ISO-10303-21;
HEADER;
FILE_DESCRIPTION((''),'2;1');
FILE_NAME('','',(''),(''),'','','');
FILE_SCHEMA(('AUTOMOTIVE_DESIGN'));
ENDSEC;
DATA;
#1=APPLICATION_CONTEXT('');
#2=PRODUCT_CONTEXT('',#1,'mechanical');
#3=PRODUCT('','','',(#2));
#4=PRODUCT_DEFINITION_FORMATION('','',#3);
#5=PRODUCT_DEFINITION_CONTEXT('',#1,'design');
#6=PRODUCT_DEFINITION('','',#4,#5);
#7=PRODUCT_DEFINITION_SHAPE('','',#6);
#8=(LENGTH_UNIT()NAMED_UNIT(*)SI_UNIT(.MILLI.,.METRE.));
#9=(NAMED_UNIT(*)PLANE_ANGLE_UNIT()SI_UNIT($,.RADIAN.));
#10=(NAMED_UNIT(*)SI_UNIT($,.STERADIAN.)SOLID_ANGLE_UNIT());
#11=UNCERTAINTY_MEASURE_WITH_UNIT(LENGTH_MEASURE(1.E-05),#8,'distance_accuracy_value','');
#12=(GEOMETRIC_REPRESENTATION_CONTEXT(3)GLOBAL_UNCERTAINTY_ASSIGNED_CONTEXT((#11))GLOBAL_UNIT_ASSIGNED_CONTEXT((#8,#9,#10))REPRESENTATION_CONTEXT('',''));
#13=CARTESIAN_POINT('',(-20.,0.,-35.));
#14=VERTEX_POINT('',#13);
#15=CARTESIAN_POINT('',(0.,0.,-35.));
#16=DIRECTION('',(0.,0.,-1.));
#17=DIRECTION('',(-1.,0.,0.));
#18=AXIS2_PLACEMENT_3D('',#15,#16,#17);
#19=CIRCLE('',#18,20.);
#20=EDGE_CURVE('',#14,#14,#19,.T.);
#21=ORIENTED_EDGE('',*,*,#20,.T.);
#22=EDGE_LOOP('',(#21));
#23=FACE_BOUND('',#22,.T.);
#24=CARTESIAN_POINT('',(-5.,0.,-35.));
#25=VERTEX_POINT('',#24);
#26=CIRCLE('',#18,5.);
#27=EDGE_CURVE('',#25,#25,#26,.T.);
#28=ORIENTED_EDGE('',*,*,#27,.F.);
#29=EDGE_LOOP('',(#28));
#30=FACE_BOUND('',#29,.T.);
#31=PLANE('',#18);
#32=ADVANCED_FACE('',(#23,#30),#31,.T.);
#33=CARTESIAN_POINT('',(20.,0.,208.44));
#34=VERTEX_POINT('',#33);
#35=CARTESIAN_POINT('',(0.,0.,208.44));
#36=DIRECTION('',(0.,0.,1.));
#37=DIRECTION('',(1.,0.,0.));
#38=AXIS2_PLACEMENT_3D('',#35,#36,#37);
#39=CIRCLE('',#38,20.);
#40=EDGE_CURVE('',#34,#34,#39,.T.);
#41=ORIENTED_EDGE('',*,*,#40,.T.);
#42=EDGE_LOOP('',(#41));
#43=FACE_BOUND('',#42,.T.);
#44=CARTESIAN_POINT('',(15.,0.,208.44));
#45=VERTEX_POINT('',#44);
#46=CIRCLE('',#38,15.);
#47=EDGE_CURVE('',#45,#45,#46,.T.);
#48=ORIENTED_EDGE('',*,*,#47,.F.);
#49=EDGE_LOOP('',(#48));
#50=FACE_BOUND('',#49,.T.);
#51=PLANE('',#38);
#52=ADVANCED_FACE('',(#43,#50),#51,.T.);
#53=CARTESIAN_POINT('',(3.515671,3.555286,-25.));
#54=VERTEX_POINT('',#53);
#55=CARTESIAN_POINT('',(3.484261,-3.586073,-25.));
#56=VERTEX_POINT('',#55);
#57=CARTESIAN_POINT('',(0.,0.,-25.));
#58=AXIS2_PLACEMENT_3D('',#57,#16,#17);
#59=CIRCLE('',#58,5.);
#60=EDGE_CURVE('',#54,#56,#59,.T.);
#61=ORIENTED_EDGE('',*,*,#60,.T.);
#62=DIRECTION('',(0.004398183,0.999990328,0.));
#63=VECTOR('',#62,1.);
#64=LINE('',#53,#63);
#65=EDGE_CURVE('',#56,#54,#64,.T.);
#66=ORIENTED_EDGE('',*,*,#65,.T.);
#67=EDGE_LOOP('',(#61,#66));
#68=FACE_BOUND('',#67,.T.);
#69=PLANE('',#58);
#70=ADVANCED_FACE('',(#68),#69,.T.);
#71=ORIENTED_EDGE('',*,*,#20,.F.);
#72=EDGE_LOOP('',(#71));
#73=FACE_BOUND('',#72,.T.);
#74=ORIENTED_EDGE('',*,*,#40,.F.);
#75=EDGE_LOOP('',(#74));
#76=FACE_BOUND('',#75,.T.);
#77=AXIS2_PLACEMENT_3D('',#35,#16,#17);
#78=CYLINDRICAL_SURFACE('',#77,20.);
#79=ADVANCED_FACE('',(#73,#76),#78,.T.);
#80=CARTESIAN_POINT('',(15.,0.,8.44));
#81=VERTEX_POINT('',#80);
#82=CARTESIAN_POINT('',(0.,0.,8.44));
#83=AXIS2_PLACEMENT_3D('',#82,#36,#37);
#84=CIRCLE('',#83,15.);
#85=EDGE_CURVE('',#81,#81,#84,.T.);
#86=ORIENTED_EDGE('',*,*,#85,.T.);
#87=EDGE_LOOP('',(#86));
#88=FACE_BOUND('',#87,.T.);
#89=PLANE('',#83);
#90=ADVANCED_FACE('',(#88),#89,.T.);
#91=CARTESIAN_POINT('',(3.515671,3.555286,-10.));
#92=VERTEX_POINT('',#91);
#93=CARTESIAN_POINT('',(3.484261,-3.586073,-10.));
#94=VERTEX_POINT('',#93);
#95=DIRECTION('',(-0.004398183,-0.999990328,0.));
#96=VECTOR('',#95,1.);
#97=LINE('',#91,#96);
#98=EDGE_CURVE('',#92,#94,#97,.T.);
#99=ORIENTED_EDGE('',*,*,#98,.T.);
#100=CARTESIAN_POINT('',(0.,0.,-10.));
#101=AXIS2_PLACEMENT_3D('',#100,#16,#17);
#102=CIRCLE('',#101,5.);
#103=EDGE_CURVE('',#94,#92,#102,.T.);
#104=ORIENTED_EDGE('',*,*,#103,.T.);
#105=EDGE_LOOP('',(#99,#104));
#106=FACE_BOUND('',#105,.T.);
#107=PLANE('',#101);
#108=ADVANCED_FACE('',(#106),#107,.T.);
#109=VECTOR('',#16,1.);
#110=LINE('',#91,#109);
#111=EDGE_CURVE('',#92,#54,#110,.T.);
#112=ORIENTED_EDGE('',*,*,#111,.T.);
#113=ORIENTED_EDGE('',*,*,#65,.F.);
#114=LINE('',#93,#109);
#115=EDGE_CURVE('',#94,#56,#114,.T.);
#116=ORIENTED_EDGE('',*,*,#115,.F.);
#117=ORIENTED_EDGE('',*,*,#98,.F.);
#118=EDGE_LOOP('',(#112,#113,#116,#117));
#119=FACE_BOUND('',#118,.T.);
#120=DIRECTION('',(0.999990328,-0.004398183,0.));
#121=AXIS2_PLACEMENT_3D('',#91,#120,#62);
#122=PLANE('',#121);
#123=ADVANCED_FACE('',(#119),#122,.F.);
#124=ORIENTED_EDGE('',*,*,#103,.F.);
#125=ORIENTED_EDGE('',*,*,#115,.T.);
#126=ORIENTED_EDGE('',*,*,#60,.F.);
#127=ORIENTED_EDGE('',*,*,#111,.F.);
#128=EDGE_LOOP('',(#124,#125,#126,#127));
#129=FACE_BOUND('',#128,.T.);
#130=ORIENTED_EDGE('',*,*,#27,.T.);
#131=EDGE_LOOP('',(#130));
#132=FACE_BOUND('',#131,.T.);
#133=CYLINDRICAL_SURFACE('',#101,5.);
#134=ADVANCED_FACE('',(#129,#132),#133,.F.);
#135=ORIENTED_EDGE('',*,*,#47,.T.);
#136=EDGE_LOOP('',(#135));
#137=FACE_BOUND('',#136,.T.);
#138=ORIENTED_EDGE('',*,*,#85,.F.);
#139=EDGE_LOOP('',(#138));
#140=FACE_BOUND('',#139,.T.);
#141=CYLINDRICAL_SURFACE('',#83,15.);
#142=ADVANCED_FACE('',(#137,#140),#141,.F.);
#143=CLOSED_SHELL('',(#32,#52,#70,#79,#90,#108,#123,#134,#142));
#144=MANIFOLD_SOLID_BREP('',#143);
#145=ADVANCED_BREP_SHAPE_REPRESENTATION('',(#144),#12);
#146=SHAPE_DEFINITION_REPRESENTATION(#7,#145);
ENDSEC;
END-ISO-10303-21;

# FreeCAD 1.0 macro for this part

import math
import FreeCAD as App
import Part
import Sketcher

doc = App.newDocument("Part")
body = doc.addObject("PartDesign::Body", "Body")

sketch1 = doc.addObject("Sketcher::SketchObject", "Sketch")
body.addObject(sketch1)
sketch1.AttachmentSupport = (doc.XY_Plane, [""])
sketch1.MapMode = "FlatFace"
sketch1.addGeometry(Part.Circle(App.Vector(0, 0, 0), App.Vector(0, 0, 1), 20), False)
sketch1.addConstraint(Sketcher.Constraint("Coincident", 0, 3, -1, 1))
sketch1.addConstraint(Sketcher.Constraint("Diameter", 0, 40.0))
pad1 = doc.addObject("PartDesign::Pad", "Pad")
body.addObject(pad1)
pad1.Profile = sketch1
pad1.Length = 208.44

sketch2 = doc.addObject("Sketcher::SketchObject", "Sketch001")
body.addObject(sketch2)
sketch2.AttachmentSupport = (doc.XY_Plane, [""])
sketch2.MapMode = "FlatFace"
sketch2.AttachmentOffset = App.Placement(App.Vector(0, 0, -35), App.Rotation())
sketch2.addGeometry(Part.Circle(App.Vector(0, 0, 0), App.Vector(0, 0, 1), 20), False)
sketch2.addConstraint(Sketcher.Constraint("Coincident", 0, 3, -1, 1))
sketch2.addConstraint(Sketcher.Constraint("Diameter", 0, 40.0))
pad2 = doc.addObject("PartDesign::Pad", "Pad001")
body.addObject(pad2)
pad2.Profile = sketch2
pad2.Length = 35

sketch3 = doc.addObject("Sketcher::SketchObject", "Sketch002")
body.addObject(sketch3)
sketch3.AttachmentSupport = (doc.XY_Plane, [""])
sketch3.MapMode = "FlatFace"
sketch3.AttachmentOffset = App.Placement(App.Vector(0, 0, -35), App.Rotation())
sketch3.addGeometry(Part.LineSegment(App.Vector(4, 4, 0), App.Vector(3, -4, 0)), False)
sketch3.addGeometry(Part.ArcOfCircle(Part.Circle(App.Vector(0, 0, 0), App.Vector(0, 0, 1), 5), math.radians(45), math.radians(314)), False)
sketch3.addConstraint(Sketcher.Constraint("Coincident", 0, 1, 1, 1))
sketch3.addConstraint(Sketcher.Constraint("Coincident", 1, 2, 0, 2))
sketch3.addConstraint(Sketcher.Constraint("Coincident", 1, 3, -1, 1))
sketch3.addConstraint(Sketcher.Constraint("Radius", 1, 5.0))
sketch3.addConstraint(Sketcher.Constraint("Distance", 0, 7.141428))
sketch3.addConstraint(Sketcher.Constraint("DistanceX", -1, 1, 0, 1, 3.515671))
pocket1 = doc.addObject("PartDesign::Pocket", "Pocket")
body.addObject(pocket1)
pocket1.Profile = sketch3
pocket1.Length = 25
pocket1.Reversed = True

sketch4 = doc.addObject("Sketcher::SketchObject", "Sketch003")
body.addObject(sketch4)
sketch4.AttachmentSupport = (doc.XY_Plane, [""])
sketch4.MapMode = "FlatFace"
sketch4.AttachmentOffset = App.Placement(App.Vector(0, 0, -35), App.Rotation())
sketch4.addGeometry(Part.Circle(App.Vector(0, 0, 0), App.Vector(0, 0, 1), 5), False)
sketch4.addConstraint(Sketcher.Constraint("Coincident", 0, 3, -1, 1))
sketch4.addConstraint(Sketcher.Constraint("Diameter", 0, 10.0))
pocket2 = doc.addObject("PartDesign::Pocket", "Pocket001")
body.addObject(pocket2)
pocket2.Profile = sketch4
pocket2.Length = 10
pocket2.Reversed = True

sketch5 = doc.addObject("Sketcher::SketchObject", "Sketch004")
body.addObject(sketch5)
sketch5.AttachmentSupport = (doc.XY_Plane, [""])
sketch5.MapMode = "FlatFace"
sketch5.AttachmentOffset = App.Placement(App.Vector(0, 0, 208.44), App.Rotation())
sketch5.addGeometry(Part.Circle(App.Vector(0, 0, 0), App.Vector(0, 0, 1), 15), False)
sketch5.addConstraint(Sketcher.Constraint("Coincident", 0, 3, -1, 1))
sketch5.addConstraint(Sketcher.Constraint("Diameter", 0, 30.0))
pocket3 = doc.addObject("PartDesign::Pocket", "Pocket002")
body.addObject(pocket3)
pocket3.Profile = sketch5
pocket3.Length = 200

doc.recompute()
